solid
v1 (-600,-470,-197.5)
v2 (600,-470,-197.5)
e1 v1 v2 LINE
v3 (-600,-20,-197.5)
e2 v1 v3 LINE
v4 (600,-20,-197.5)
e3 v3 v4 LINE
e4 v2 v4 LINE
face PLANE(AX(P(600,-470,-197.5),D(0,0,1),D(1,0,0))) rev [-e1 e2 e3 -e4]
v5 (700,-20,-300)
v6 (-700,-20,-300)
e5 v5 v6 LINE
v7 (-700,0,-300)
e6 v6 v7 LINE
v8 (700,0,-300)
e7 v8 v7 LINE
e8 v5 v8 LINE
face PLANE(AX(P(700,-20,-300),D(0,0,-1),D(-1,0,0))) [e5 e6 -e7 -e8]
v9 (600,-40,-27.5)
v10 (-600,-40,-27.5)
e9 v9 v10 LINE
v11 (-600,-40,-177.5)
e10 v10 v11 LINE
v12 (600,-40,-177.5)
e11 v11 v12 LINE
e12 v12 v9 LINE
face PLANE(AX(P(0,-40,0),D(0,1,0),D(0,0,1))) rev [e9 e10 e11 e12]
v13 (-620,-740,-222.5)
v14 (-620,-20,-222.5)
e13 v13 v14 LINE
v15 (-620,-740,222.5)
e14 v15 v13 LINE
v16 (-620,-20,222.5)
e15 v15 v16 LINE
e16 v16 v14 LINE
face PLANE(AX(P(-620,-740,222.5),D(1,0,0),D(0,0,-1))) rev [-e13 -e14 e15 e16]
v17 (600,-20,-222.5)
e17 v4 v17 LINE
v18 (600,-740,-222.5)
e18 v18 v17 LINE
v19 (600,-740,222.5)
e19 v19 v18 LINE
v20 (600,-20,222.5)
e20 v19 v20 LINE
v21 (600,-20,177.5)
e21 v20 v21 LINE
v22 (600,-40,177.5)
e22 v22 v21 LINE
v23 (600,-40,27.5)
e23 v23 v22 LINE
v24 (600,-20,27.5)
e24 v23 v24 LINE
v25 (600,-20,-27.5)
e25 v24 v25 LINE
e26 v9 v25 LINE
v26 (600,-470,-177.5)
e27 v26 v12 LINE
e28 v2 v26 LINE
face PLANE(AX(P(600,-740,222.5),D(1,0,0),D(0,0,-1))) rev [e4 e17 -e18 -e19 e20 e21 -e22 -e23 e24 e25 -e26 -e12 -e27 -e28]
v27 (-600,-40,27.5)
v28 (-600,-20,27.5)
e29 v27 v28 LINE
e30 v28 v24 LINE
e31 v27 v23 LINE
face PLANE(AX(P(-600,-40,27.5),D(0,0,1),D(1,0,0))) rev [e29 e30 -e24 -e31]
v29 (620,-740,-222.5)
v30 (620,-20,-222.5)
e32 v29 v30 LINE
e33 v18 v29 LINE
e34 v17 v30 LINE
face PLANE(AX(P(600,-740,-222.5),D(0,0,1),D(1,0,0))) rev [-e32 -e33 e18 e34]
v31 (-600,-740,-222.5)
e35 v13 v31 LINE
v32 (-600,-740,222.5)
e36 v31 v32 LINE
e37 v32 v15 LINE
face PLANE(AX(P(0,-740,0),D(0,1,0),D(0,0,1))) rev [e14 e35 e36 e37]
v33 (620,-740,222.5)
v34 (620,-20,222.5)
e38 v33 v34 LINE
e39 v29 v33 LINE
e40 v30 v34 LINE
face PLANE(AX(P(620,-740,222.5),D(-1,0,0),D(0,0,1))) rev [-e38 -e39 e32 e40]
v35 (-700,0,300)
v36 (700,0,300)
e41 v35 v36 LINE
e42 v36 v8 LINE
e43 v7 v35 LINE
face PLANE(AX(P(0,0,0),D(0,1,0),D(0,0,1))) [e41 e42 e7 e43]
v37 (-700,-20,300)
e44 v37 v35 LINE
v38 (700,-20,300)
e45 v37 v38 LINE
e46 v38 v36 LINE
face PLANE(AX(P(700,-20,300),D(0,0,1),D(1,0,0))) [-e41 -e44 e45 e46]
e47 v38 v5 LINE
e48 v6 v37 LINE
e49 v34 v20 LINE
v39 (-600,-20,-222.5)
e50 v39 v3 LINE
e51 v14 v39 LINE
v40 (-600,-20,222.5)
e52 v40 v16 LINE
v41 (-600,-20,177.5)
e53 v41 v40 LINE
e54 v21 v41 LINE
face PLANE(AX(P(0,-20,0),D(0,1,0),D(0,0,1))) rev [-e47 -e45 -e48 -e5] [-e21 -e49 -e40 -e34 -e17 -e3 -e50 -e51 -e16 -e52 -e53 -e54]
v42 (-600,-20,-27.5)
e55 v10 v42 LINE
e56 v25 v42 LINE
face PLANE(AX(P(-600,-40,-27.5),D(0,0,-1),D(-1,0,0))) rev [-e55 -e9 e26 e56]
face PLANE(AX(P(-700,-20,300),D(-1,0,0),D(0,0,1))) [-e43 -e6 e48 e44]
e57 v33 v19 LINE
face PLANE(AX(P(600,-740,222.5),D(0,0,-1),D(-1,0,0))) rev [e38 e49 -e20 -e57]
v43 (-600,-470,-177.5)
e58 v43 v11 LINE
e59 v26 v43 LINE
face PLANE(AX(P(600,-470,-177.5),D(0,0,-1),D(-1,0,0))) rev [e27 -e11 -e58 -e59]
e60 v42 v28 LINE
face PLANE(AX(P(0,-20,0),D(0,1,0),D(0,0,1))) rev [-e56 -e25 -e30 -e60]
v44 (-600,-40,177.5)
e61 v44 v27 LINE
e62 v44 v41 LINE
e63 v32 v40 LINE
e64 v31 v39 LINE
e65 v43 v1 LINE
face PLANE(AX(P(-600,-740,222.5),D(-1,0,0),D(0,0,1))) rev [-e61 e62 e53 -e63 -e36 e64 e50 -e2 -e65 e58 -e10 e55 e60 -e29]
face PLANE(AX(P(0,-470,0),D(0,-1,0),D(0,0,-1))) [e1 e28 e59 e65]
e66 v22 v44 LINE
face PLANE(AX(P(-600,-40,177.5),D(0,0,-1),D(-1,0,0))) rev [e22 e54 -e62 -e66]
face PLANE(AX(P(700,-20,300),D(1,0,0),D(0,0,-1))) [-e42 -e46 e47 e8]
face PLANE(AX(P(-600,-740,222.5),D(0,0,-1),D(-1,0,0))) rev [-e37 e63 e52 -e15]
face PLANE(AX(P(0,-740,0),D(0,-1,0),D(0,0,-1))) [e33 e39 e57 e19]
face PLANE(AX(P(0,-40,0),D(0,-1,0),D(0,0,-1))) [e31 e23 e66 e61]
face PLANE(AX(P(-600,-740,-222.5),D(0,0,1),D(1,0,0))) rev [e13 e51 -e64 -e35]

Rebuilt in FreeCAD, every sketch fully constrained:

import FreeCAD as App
import Part
import Sketcher
from FreeCAD import Vector
Q = App.Units.Quantity


def add_polygon(sketch, points):
    """Adds a closed chain of lines whose ends are joined by coincident constraints."""
    first, n = sketch.GeometryCount, len(points)
    for a, b in zip(points, points[1:] + points[:1]):
        sketch.addGeometry(Part.LineSegment(App.Vector(*a, 0), App.Vector(*b, 0)), False)
    for i in range(n):
        sketch.addConstraint(Sketcher.Constraint("Coincident", first + i, 2, first + (i + 1) % n, 1))

doc = App.newDocument("Part")
params = doc.addObject("Spreadsheet::Sheet", "Params")
for row, (alias, value) in enumerate([
    ("sketch1_width", "1400 mm"),
    ("sketch1_height", "600 mm"),
    ("pad1_length", "20 mm"),
    ("sketch2_width", "20 mm"),
    ("sketch2_height", "445 mm"),
    ("pad2_length", "720 mm"),
    ("sketch3_width", "1200 mm"),
    ("sketch3_height", "20 mm"),
    ("pad3_length", "450 mm"),
    ("sketch4_width", "1200 mm"),
    ("sketch4_height", "150 mm"),
    ("pad4_length", "20 mm"),
], start=1):
    params.set(f"A{row}", alias)
    params.set(f"B{row}", "=" + value)
    params.setAlias(f"B{row}", alias)

body = doc.addObject("PartDesign::Body", "Body")

sketch1 = doc.addObject("Sketcher::SketchObject", "Sketch")
body.addObject(sketch1)
sketch1.AttachmentSupport = (doc.XZ_Plane, [""])
sketch1.MapMode = "FlatFace"
add_polygon(sketch1, [(-700, -300), (-700, 300), (700, 300), (700, -300)])
sketch1.addConstraint(Sketcher.Constraint("Vertical", 0))
sketch1.addConstraint(Sketcher.Constraint("Horizontal", 1))
sketch1.addConstraint(Sketcher.Constraint("Vertical", 2))
sketch1.addConstraint(Sketcher.Constraint("Horizontal", 3))
sketch1.addConstraint(Sketcher.Constraint("Symmetric", 0, 2, 2, 2, -1, 1))
sketch1.addConstraint(Sketcher.Constraint("DistanceX", 1, 1, 1, 2, Q("1400 mm")))
sketch1.addConstraint(Sketcher.Constraint("DistanceY", 0, 1, 0, 2, Q("600 mm")))
sketch1.setExpression("Constraints[9]", "Params.sketch1_width")
sketch1.setExpression("Constraints[10]", "Params.sketch1_height")
pad1 = doc.addObject("PartDesign::Pad", "Pad")
body.addObject(pad1)
pad1.Profile = sketch1
pad1.setExpression("Length", "Params.pad1_length")

sketch2 = doc.addObject("Sketcher::SketchObject", "Sketch001")
body.addObject(sketch2)
sketch2.AttachmentSupport = (doc.XZ_Plane, [""])
sketch2.MapMode = "FlatFace"
sketch2.AttachmentOffset = App.Placement(Vector(0, 0, 20), App.Rotation())
add_polygon(sketch2, [(600, 222.5), (600, -222.5), (620, -222.5), (620, 222.5)])
add_polygon(sketch2, [(-620, 222.5), (-620, -222.5), (-600, -222.5), (-600, 222.5)])
sketch2.addConstraint(Sketcher.Constraint("Vertical", 0))
sketch2.addConstraint(Sketcher.Constraint("Horizontal", 1))
sketch2.addConstraint(Sketcher.Constraint("Vertical", 2))
sketch2.addConstraint(Sketcher.Constraint("Horizontal", 3))
sketch2.addConstraint(Sketcher.Constraint("Vertical", 4))
sketch2.addConstraint(Sketcher.Constraint("Horizontal", 5))
sketch2.addConstraint(Sketcher.Constraint("Vertical", 6))
sketch2.addConstraint(Sketcher.Constraint("Horizontal", 7))
sketch2.addConstraint(Sketcher.Constraint("Symmetric", 2, 2, 4, 2, -1, 1))
sketch2.addConstraint(Sketcher.Constraint("Symmetric", 0, 2, 6, 2, -1, 1))
sketch2.addConstraint(Sketcher.Constraint("Horizontal", 1, 2, 4, 2))
sketch2.addConstraint(Sketcher.Constraint("DistanceX", 1, 1, 1, 2, Q("20 mm")))
sketch2.addConstraint(Sketcher.Constraint("DistanceY", 0, 2, 0, 1, Q("445 mm")))
sketch2.addConstraint(Sketcher.Constraint("DistanceX", -1, 1, 0, 2, Q("600 mm")))
sketch2.setExpression("Constraints[19]", "Params.sketch2_width")
sketch2.setExpression("Constraints[20]", "Params.sketch2_height")
pad2 = doc.addObject("PartDesign::Pad", "Pad001")
body.addObject(pad2)
pad2.Profile = sketch2
pad2.setExpression("Length", "Params.pad2_length")

sketch3 = doc.addObject("Sketcher::SketchObject", "Sketch002")
body.addObject(sketch3)
sketch3.AttachmentSupport = (doc.XZ_Plane, [""])
sketch3.MapMode = "FlatFace"
sketch3.AttachmentOffset = App.Placement(Vector(0, 0, 20), App.Rotation())
add_polygon(sketch3, [(-600, -177.5), (-600, -197.5), (600, -197.5), (600, -177.5)])
sketch3.addConstraint(Sketcher.Constraint("Vertical", 0))
sketch3.addConstraint(Sketcher.Constraint("Horizontal", 1))
sketch3.addConstraint(Sketcher.Constraint("Vertical", 2))
sketch3.addConstraint(Sketcher.Constraint("Horizontal", 3))
sketch3.addConstraint(Sketcher.Constraint("DistanceX", 1, 1, 1, 2, Q("1200 mm")))
sketch3.addConstraint(Sketcher.Constraint("DistanceY", 0, 2, 0, 1, Q("20 mm")))
sketch3.addConstraint(Sketcher.Constraint("DistanceX", 0, 2, -1, 1, Q("600 mm")))
sketch3.addConstraint(Sketcher.Constraint("DistanceY", 0, 2, -1, 1, Q("197.5 mm")))
sketch3.setExpression("Constraints[8]", "Params.sketch3_width")
sketch3.setExpression("Constraints[9]", "Params.sketch3_height")
pad3 = doc.addObject("PartDesign::Pad", "Pad002")
body.addObject(pad3)
pad3.Profile = sketch3
pad3.setExpression("Length", "Params.pad3_length")

sketch4 = doc.addObject("Sketcher::SketchObject", "Sketch003")
body.addObject(sketch4)
sketch4.AttachmentSupport = (doc.XZ_Plane, [""])
sketch4.MapMode = "FlatFace"
sketch4.AttachmentOffset = App.Placement(Vector(0, 0, 20), App.Rotation())
add_polygon(sketch4, [(-600, -27.5), (-600, -177.5), (600, -177.5), (600, -27.5)])
add_polygon(sketch4, [(-600, 177.5), (-600, 27.5), (600, 27.5), (600, 177.5)])
sketch4.addConstraint(Sketcher.Constraint("Vertical", 0))
sketch4.addConstraint(Sketcher.Constraint("Horizontal", 1))
sketch4.addConstraint(Sketcher.Constraint("Vertical", 2))
sketch4.addConstraint(Sketcher.Constraint("Horizontal", 3))
sketch4.addConstraint(Sketcher.Constraint("Vertical", 4))
sketch4.addConstraint(Sketcher.Constraint("Horizontal", 5))
sketch4.addConstraint(Sketcher.Constraint("Vertical", 6))
sketch4.addConstraint(Sketcher.Constraint("Horizontal", 7))
sketch4.addConstraint(Sketcher.Constraint("Symmetric", 2, 2, 4, 2, -1, 1))
sketch4.addConstraint(Sketcher.Constraint("Symmetric", 0, 2, 6, 2, -1, 1))
sketch4.addConstraint(Sketcher.Constraint("Vertical", 3, 2, 4, 2))
sketch4.addConstraint(Sketcher.Constraint("DistanceX", 1, 1, 1, 2, Q("1200 mm")))
sketch4.addConstraint(Sketcher.Constraint("DistanceY", 0, 2, 0, 1, Q("150 mm")))
sketch4.addConstraint(Sketcher.Constraint("DistanceY", 3, 2, 4, 2, Q("55 mm")))
sketch4.setExpression("Constraints[19]", "Params.sketch4_width")
sketch4.setExpression("Constraints[20]", "Params.sketch4_height")
pad4 = doc.addObject("PartDesign::Pad", "Pad003")
body.addObject(pad4)
pad4.Profile = sketch4
pad4.setExpression("Length", "Params.pad4_length")

doc.recompute()
